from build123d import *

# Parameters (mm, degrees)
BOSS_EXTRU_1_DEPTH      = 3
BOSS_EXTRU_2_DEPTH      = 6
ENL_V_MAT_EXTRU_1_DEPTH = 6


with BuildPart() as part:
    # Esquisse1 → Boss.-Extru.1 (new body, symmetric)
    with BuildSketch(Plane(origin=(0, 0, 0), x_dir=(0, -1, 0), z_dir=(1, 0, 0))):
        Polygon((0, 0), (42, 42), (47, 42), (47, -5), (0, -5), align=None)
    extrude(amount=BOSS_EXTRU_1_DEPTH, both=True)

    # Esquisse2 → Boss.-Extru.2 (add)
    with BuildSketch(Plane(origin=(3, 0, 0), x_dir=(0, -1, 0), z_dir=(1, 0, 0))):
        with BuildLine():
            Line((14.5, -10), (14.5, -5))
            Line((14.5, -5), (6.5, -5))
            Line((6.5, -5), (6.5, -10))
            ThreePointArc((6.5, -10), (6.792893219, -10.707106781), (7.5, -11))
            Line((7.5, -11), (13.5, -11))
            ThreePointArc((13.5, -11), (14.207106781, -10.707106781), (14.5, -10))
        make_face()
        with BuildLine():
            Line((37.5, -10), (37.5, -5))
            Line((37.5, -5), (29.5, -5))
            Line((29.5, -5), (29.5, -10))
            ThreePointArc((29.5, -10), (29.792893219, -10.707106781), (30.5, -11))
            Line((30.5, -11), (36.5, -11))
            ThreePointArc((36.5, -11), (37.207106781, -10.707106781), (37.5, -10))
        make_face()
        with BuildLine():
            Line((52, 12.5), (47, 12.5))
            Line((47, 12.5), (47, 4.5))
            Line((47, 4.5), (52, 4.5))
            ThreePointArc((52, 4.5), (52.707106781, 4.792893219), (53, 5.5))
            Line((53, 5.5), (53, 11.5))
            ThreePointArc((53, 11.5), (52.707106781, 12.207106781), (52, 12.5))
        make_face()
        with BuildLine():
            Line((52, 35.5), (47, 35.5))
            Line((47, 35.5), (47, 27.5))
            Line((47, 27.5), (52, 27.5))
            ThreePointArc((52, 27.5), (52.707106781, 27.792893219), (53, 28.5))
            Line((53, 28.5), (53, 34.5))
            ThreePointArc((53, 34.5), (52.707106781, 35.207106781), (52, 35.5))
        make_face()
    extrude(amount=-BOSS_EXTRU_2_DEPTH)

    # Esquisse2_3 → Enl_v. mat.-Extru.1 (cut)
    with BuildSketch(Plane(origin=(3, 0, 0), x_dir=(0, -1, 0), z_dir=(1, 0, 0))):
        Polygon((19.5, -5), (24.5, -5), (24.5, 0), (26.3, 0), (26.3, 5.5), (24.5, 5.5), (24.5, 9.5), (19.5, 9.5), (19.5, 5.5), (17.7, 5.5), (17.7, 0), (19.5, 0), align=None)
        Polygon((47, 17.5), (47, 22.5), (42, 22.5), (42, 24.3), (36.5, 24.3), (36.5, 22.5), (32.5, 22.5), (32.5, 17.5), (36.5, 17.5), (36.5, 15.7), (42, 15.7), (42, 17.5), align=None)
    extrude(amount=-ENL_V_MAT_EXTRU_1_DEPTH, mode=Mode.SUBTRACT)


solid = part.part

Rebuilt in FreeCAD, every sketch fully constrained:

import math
import FreeCAD as App
import Part
import Sketcher


def add_polygon(sketch, points):
    """Adds a closed chain of lines whose ends are joined by coincident constraints."""
    first, n = sketch.GeometryCount, len(points)
    for a, b in zip(points, points[1:] + points[:1]):
        sketch.addGeometry(Part.LineSegment(App.Vector(*a, 0), App.Vector(*b, 0)), False)
    for i in range(n):
        sketch.addConstraint(Sketcher.Constraint("Coincident", first + i, 2, first + (i + 1) % n, 1))

doc = App.newDocument("Part")
params = doc.addObject("Spreadsheet::Sheet", "Params")
for row, (alias, value) in enumerate([
    ("sketch1_width", "47 mm"),
    ("sketch1_width2", "5 mm"),
    ("pad1_length", "6 mm"),
    ("sketch2_radius", "1 mm"),
    ("sketch2_width", "8 mm"),
    ("sketch2_width2", "5 mm"),
    ("pad2_length", "6 mm"),
    ("sketch3_width", "5 mm"),
    ("sketch3_width2", "4 mm"),
    ("sketch3_width3", "1.8 mm"),
    ("sketch3_width4", "5.5 mm"),
    ("pocket1_length", "6 mm"),
], start=1):
    params.set(f"A{row}", alias)
    params.set(f"B{row}", "=" + value)
    params.setAlias(f"B{row}", alias)

body = doc.addObject("PartDesign::Body", "Body")

sketch1 = body.newObject("Sketcher::SketchObject", "Sketch")
sketch1.AttachmentSupport = (doc.getObject("YZ_Plane"), [""])
sketch1.MapMode = "FlatFace"
add_polygon(sketch1, [(-42, -42), (0, 0), (0, 5), (-47, 5), (-47, -42)])
sketch1.addConstraint([
    Sketcher.Constraint("Vertical", 1),
    Sketcher.Constraint("Horizontal", 2),
    Sketcher.Constraint("Vertical", 3),
    Sketcher.Constraint("Horizontal", 4),
    Sketcher.Constraint("Coincident", 0, 2, -1, 1),
    Sketcher.Constraint("Equal", 4, 1),
    Sketcher.Constraint("Equal", 2, 3),
    Sketcher.Constraint("DistanceX", 2, 2, 2, 1, 47.0),
    Sketcher.Constraint("DistanceX", 4, 1, 4, 2, 5.0),
])
sketch1.setExpression("Constraints[12]", "Params.sketch1_width")
sketch1.setExpression("Constraints[13]", "Params.sketch1_width2")
pad1 = body.newObject("PartDesign::Pad", "Pad")
pad1.Profile = sketch1
pad1.setExpression("Length", "Params.pad1_length")
pad1.Midplane = True

sketch2 = body.newObject("Sketcher::SketchObject", "Sketch001")
sketch2.AttachmentSupport = (doc.getObject("YZ_Plane"), [""])
sketch2.MapMode = "FlatFace"
sketch2.AttachmentOffset = App.Placement(App.Vector(0, 0, 3), App.Rotation())
sketch2.addGeometry([
    Part.LineSegment(App.Vector(-14.5, 10, 0), App.Vector(-14.5, 5, 0)),
    Part.LineSegment(App.Vector(-14.5, 5, 0), App.Vector(-6.5, 5, 0)),
    Part.LineSegment(App.Vector(-6.5, 5, 0), App.Vector(-6.5, 10, 0)),
    Part.ArcOfCircle(Part.Circle(App.Vector(-7.5, 10, 0), App.Vector(0, 0, 1), 1), math.radians(0), math.radians(90)),
    Part.LineSegment(App.Vector(-7.5, 11, 0), App.Vector(-13.5, 11, 0)),
    Part.ArcOfCircle(Part.Circle(App.Vector(-13.5, 10, 0), App.Vector(0, 0, 1), 1), math.radians(90), math.radians(180)),
    Part.LineSegment(App.Vector(-37.5, 10, 0), App.Vector(-37.5, 5, 0)),
    Part.LineSegment(App.Vector(-37.5, 5, 0), App.Vector(-29.5, 5, 0)),
    Part.LineSegment(App.Vector(-29.5, 5, 0), App.Vector(-29.5, 10, 0)),
    Part.ArcOfCircle(Part.Circle(App.Vector(-30.5, 10, 0), App.Vector(0, 0, 1), 1), math.radians(0), math.radians(90)),
    Part.LineSegment(App.Vector(-30.5, 11, 0), App.Vector(-36.5, 11, 0)),
    Part.ArcOfCircle(Part.Circle(App.Vector(-36.5, 10, 0), App.Vector(0, 0, 1), 1), math.radians(90), math.radians(180)),
    Part.LineSegment(App.Vector(-52, -12.5, 0), App.Vector(-47, -12.5, 0)),
    Part.LineSegment(App.Vector(-47, -12.5, 0), App.Vector(-47, -4.5, 0)),
    Part.LineSegment(App.Vector(-47, -4.5, 0), App.Vector(-52, -4.5, 0)),
    Part.ArcOfCircle(Part.Circle(App.Vector(-52, -5.5, 0), App.Vector(0, 0, 1), 1), math.radians(90), math.radians(180)),
    Part.LineSegment(App.Vector(-53, -5.5, 0), App.Vector(-53, -11.5, 0)),
    Part.ArcOfCircle(Part.Circle(App.Vector(-52, -11.5, 0), App.Vector(0, 0, 1), 1), math.radians(-180), math.radians(-90)),
    Part.LineSegment(App.Vector(-52, -35.5, 0), App.Vector(-47, -35.5, 0)),
    Part.LineSegment(App.Vector(-47, -35.5, 0), App.Vector(-47, -27.5, 0)),
    Part.LineSegment(App.Vector(-47, -27.5, 0), App.Vector(-52, -27.5, 0)),
    Part.ArcOfCircle(Part.Circle(App.Vector(-52, -28.5, 0), App.Vector(0, 0, 1), 1), math.radians(90), math.radians(180)),
    Part.LineSegment(App.Vector(-53, -28.5, 0), App.Vector(-53, -34.5, 0)),
    Part.ArcOfCircle(Part.Circle(App.Vector(-52, -34.5, 0), App.Vector(0, 0, 1), 1), math.radians(-180), math.radians(-90)),
], False)
sketch2.addConstraint([
    Sketcher.Constraint("Coincident", 0, 2, 1, 1),
    Sketcher.Constraint("Coincident", 1, 2, 2, 1),
    Sketcher.Constraint("Tangent", 2, 2, 3, 1),
    Sketcher.Constraint("Tangent", 3, 2, 4, 1),
    Sketcher.Constraint("Tangent", 4, 2, 5, 1),
    Sketcher.Constraint("Tangent", 5, 2, 0, 1),
    Sketcher.Constraint("Coincident", 6, 2, 7, 1),
    Sketcher.Constraint("Coincident", 7, 2, 8, 1),
    Sketcher.Constraint("Tangent", 8, 2, 9, 1),
    Sketcher.Constraint("Tangent", 9, 2, 10, 1),
    Sketcher.Constraint("Tangent", 10, 2, 11, 1),
    Sketcher.Constraint("Tangent", 11, 2, 6, 1),
    Sketcher.Constraint("Coincident", 12, 2, 13, 1),
    Sketcher.Constraint("Coincident", 13, 2, 14, 1),
    Sketcher.Constraint("Tangent", 14, 2, 15, 1),
    Sketcher.Constraint("Tangent", 15, 2, 16, 1),
    Sketcher.Constraint("Tangent", 16, 2, 17, 1),
    Sketcher.Constraint("Tangent", 17, 2, 12, 1),
    Sketcher.Constraint("Coincident", 18, 2, 19, 1),
    Sketcher.Constraint("Coincident", 19, 2, 20, 1),
    Sketcher.Constraint("Tangent", 20, 2, 21, 1),
    Sketcher.Constraint("Tangent", 21, 2, 22, 1),
    Sketcher.Constraint("Tangent", 22, 2, 23, 1),
    Sketcher.Constraint("Tangent", 23, 2, 18, 1),
    Sketcher.Constraint("Vertical", 0),
    Sketcher.Constraint("Horizontal", 1),
    Sketcher.Constraint("Vertical", 2),
    Sketcher.Constraint("Horizontal", 4),
    Sketcher.Constraint("Vertical", 6),
    Sketcher.Constraint("Horizontal", 7),
    Sketcher.Constraint("Vertical", 8),
    Sketcher.Constraint("Horizontal", 10),
    Sketcher.Constraint("Horizontal", 12),
    Sketcher.Constraint("Vertical", 13),
    Sketcher.Constraint("Horizontal", 14),
    Sketcher.Constraint("Vertical", 16),
    Sketcher.Constraint("Horizontal", 18),
    Sketcher.Constraint("Vertical", 19),
    Sketcher.Constraint("Horizontal", 20),
    Sketcher.Constraint("Vertical", 22),
    Sketcher.Constraint("Equal", 3, 5),
    Sketcher.Constraint("Equal", 5, 9),
    Sketcher.Constraint("Equal", 9, 11),
    Sketcher.Constraint("Equal", 11, 15),
    Sketcher.Constraint("Equal", 15, 17),
    Sketcher.Constraint("Equal", 17, 21),
    Sketcher.Constraint("Equal", 21, 23),
    Sketcher.Constraint("Horizontal", 5, 3, 9, 3),
    Sketcher.Constraint("Horizontal", 1, 2, 6, 2),
    Sketcher.Constraint("Vertical", 17, 3, 21, 3),
    Sketcher.Constraint("Vertical", 13, 2, 18, 2),
    Sketcher.Constraint("Equal", 1, 7),
    Sketcher.Constraint("Equal", 20, 0),
    Sketcher.Constraint("Equal", 7, 13),
    Sketcher.Constraint("Equal", 13, 19),
    Sketcher.Constraint("Radius", 3, 1.0),
    Sketcher.Constraint("DistanceX", 1, 1, 1, 2, 8.0),
    Sketcher.Constraint("DistanceX", 12, 1, 12, 2, 5.0),
    Sketcher.Constraint("DistanceY", -1, 1, 3, 3, 10.0),
    Sketcher.Constraint("DistanceX", 15, 3, -1, 1, 52.0),
    Sketcher.Constraint("DistanceX", 9, 3, 5, 3, 17.0),
    Sketcher.Constraint("DistanceY", 21, 3, 17, 3, 17.0),
    Sketcher.Constraint("DistanceX", 3, 3, -1, 1, 7.5),
    Sketcher.Constraint("DistanceY", 15, 3, -1, 1, 5.5),
])
sketch2.setExpression("Constraints[55]", "Params.sketch2_radius")
sketch2.setExpression("Constraints[56]", "Params.sketch2_width")
sketch2.setExpression("Constraints[57]", "Params.sketch2_width2")
pad2 = body.newObject("PartDesign::Pad", "Pad001")
pad2.Profile = sketch2
pad2.setExpression("Length", "Params.pad2_length")
pad2.Reversed = True

sketch3 = body.newObject("Sketcher::SketchObject", "Sketch002")
sketch3.AttachmentSupport = (doc.getObject("YZ_Plane"), [""])
sketch3.MapMode = "FlatFace"
sketch3.AttachmentOffset = App.Placement(App.Vector(0, 0, 3), App.Rotation())
add_polygon(sketch3, [(-19.5, 5), (-24.5, 5), (-24.5, 0), (-26.3, 0), (-26.3, -5.5), (-24.5, -5.5), (-24.5, -9.5), (-19.5, -9.5), (-19.5, -5.5), (-17.7, -5.5), (-17.7, 0), (-19.5, 0)])
add_polygon(sketch3, [(-47, -17.5), (-47, -22.5), (-42, -22.5), (-42, -24.3), (-36.5, -24.3), (-36.5, -22.5), (-32.5, -22.5), (-32.5, -17.5), (-36.5, -17.5), (-36.5, -15.7), (-42, -15.7), (-42, -17.5)])
sketch3.addConstraint([
    Sketcher.Constraint("Horizontal", 0),
    Sketcher.Constraint("Vertical", 1),
    Sketcher.Constraint("Horizontal", 2),
    Sketcher.Constraint("Vertical", 3),
    Sketcher.Constraint("Horizontal", 4),
    Sketcher.Constraint("Vertical", 5),
    Sketcher.Constraint("Horizontal", 6),
    Sketcher.Constraint("Vertical", 7),
    Sketcher.Constraint("Horizontal", 8),
    Sketcher.Constraint("Vertical", 9),
    Sketcher.Constraint("Horizontal", 10),
    Sketcher.Constraint("Vertical", 11),
    Sketcher.Constraint("Vertical", 12),
    Sketcher.Constraint("Horizontal", 13),
    Sketcher.Constraint("Vertical", 14),
    Sketcher.Constraint("Horizontal", 15),
    Sketcher.Constraint("Vertical", 16),
    Sketcher.Constraint("Horizontal", 17),
    Sketcher.Constraint("Vertical", 18),
    Sketcher.Constraint("Horizontal", 19),
    Sketcher.Constraint("Vertical", 20),
    Sketcher.Constraint("Horizontal", 21),
    Sketcher.Constraint("Vertical", 22),
    Sketcher.Constraint("Horizontal", 23),
    Sketcher.Constraint("PointOnObject", 1, 2, -1),
    Sketcher.Constraint("PointOnObject", 9, 2, -1),
    Sketcher.Constraint("Horizontal", 4, 2, 7, 2),
    Sketcher.Constraint("Horizontal", 13, 2, 16, 2),
    Sketcher.Constraint("Horizontal", 19, 2, 22, 2),
    Sketcher.Constraint("Vertical", 1, 2, 4, 2),
    Sketcher.Constraint("Vertical", 7, 2, 10, 2),
    Sketcher.Constraint("Vertical", 16, 2, 19, 2),
    Sketcher.Constraint("Vertical", 14, 2, 21, 2),
    Sketcher.Constraint("Equal", 4, 8),
    Sketcher.Constraint("Equal", 6, 13),
    Sketcher.Constraint("Equal", 23, 1),
    Sketcher.Constraint("Equal", 21, 3),
    Sketcher.Constraint("Equal", 19, 5),
    Sketcher.Constraint("Equal", 11, 12),
    Sketcher.Constraint("Equal", 10, 14),
    Sketcher.Constraint("Equal", 16, 20),
    Sketcher.Constraint("DistanceX", 0, 2, 0, 1, 5.0),
    Sketcher.Constraint("DistanceX", 17, 1, 17, 2, 4.0),
    Sketcher.Constraint("DistanceX", 2, 2, 2, 1, 1.8),
    Sketcher.Constraint("DistanceX", 15, 1, 15, 2, 5.5),
    Sketcher.Constraint("DistanceX", 12, 2, -1, 1, 47.0),
    Sketcher.Constraint("DistanceY", 12, 2, 5, 2, 13.0),
    Sketcher.Constraint("DistanceX", 15, 2, 5, 2, 12.0),
])
sketch3.setExpression("Constraints[65]", "Params.sketch3_width")
sketch3.setExpression("Constraints[66]", "Params.sketch3_width2")
sketch3.setExpression("Constraints[67]", "Params.sketch3_width3")
sketch3.setExpression("Constraints[68]", "Params.sketch3_width4")
pocket1 = body.newObject("PartDesign::Pocket", "Pocket")
pocket1.Profile = sketch3
pocket1.setExpression("Length", "Params.pocket1_length")

doc.recompute()
